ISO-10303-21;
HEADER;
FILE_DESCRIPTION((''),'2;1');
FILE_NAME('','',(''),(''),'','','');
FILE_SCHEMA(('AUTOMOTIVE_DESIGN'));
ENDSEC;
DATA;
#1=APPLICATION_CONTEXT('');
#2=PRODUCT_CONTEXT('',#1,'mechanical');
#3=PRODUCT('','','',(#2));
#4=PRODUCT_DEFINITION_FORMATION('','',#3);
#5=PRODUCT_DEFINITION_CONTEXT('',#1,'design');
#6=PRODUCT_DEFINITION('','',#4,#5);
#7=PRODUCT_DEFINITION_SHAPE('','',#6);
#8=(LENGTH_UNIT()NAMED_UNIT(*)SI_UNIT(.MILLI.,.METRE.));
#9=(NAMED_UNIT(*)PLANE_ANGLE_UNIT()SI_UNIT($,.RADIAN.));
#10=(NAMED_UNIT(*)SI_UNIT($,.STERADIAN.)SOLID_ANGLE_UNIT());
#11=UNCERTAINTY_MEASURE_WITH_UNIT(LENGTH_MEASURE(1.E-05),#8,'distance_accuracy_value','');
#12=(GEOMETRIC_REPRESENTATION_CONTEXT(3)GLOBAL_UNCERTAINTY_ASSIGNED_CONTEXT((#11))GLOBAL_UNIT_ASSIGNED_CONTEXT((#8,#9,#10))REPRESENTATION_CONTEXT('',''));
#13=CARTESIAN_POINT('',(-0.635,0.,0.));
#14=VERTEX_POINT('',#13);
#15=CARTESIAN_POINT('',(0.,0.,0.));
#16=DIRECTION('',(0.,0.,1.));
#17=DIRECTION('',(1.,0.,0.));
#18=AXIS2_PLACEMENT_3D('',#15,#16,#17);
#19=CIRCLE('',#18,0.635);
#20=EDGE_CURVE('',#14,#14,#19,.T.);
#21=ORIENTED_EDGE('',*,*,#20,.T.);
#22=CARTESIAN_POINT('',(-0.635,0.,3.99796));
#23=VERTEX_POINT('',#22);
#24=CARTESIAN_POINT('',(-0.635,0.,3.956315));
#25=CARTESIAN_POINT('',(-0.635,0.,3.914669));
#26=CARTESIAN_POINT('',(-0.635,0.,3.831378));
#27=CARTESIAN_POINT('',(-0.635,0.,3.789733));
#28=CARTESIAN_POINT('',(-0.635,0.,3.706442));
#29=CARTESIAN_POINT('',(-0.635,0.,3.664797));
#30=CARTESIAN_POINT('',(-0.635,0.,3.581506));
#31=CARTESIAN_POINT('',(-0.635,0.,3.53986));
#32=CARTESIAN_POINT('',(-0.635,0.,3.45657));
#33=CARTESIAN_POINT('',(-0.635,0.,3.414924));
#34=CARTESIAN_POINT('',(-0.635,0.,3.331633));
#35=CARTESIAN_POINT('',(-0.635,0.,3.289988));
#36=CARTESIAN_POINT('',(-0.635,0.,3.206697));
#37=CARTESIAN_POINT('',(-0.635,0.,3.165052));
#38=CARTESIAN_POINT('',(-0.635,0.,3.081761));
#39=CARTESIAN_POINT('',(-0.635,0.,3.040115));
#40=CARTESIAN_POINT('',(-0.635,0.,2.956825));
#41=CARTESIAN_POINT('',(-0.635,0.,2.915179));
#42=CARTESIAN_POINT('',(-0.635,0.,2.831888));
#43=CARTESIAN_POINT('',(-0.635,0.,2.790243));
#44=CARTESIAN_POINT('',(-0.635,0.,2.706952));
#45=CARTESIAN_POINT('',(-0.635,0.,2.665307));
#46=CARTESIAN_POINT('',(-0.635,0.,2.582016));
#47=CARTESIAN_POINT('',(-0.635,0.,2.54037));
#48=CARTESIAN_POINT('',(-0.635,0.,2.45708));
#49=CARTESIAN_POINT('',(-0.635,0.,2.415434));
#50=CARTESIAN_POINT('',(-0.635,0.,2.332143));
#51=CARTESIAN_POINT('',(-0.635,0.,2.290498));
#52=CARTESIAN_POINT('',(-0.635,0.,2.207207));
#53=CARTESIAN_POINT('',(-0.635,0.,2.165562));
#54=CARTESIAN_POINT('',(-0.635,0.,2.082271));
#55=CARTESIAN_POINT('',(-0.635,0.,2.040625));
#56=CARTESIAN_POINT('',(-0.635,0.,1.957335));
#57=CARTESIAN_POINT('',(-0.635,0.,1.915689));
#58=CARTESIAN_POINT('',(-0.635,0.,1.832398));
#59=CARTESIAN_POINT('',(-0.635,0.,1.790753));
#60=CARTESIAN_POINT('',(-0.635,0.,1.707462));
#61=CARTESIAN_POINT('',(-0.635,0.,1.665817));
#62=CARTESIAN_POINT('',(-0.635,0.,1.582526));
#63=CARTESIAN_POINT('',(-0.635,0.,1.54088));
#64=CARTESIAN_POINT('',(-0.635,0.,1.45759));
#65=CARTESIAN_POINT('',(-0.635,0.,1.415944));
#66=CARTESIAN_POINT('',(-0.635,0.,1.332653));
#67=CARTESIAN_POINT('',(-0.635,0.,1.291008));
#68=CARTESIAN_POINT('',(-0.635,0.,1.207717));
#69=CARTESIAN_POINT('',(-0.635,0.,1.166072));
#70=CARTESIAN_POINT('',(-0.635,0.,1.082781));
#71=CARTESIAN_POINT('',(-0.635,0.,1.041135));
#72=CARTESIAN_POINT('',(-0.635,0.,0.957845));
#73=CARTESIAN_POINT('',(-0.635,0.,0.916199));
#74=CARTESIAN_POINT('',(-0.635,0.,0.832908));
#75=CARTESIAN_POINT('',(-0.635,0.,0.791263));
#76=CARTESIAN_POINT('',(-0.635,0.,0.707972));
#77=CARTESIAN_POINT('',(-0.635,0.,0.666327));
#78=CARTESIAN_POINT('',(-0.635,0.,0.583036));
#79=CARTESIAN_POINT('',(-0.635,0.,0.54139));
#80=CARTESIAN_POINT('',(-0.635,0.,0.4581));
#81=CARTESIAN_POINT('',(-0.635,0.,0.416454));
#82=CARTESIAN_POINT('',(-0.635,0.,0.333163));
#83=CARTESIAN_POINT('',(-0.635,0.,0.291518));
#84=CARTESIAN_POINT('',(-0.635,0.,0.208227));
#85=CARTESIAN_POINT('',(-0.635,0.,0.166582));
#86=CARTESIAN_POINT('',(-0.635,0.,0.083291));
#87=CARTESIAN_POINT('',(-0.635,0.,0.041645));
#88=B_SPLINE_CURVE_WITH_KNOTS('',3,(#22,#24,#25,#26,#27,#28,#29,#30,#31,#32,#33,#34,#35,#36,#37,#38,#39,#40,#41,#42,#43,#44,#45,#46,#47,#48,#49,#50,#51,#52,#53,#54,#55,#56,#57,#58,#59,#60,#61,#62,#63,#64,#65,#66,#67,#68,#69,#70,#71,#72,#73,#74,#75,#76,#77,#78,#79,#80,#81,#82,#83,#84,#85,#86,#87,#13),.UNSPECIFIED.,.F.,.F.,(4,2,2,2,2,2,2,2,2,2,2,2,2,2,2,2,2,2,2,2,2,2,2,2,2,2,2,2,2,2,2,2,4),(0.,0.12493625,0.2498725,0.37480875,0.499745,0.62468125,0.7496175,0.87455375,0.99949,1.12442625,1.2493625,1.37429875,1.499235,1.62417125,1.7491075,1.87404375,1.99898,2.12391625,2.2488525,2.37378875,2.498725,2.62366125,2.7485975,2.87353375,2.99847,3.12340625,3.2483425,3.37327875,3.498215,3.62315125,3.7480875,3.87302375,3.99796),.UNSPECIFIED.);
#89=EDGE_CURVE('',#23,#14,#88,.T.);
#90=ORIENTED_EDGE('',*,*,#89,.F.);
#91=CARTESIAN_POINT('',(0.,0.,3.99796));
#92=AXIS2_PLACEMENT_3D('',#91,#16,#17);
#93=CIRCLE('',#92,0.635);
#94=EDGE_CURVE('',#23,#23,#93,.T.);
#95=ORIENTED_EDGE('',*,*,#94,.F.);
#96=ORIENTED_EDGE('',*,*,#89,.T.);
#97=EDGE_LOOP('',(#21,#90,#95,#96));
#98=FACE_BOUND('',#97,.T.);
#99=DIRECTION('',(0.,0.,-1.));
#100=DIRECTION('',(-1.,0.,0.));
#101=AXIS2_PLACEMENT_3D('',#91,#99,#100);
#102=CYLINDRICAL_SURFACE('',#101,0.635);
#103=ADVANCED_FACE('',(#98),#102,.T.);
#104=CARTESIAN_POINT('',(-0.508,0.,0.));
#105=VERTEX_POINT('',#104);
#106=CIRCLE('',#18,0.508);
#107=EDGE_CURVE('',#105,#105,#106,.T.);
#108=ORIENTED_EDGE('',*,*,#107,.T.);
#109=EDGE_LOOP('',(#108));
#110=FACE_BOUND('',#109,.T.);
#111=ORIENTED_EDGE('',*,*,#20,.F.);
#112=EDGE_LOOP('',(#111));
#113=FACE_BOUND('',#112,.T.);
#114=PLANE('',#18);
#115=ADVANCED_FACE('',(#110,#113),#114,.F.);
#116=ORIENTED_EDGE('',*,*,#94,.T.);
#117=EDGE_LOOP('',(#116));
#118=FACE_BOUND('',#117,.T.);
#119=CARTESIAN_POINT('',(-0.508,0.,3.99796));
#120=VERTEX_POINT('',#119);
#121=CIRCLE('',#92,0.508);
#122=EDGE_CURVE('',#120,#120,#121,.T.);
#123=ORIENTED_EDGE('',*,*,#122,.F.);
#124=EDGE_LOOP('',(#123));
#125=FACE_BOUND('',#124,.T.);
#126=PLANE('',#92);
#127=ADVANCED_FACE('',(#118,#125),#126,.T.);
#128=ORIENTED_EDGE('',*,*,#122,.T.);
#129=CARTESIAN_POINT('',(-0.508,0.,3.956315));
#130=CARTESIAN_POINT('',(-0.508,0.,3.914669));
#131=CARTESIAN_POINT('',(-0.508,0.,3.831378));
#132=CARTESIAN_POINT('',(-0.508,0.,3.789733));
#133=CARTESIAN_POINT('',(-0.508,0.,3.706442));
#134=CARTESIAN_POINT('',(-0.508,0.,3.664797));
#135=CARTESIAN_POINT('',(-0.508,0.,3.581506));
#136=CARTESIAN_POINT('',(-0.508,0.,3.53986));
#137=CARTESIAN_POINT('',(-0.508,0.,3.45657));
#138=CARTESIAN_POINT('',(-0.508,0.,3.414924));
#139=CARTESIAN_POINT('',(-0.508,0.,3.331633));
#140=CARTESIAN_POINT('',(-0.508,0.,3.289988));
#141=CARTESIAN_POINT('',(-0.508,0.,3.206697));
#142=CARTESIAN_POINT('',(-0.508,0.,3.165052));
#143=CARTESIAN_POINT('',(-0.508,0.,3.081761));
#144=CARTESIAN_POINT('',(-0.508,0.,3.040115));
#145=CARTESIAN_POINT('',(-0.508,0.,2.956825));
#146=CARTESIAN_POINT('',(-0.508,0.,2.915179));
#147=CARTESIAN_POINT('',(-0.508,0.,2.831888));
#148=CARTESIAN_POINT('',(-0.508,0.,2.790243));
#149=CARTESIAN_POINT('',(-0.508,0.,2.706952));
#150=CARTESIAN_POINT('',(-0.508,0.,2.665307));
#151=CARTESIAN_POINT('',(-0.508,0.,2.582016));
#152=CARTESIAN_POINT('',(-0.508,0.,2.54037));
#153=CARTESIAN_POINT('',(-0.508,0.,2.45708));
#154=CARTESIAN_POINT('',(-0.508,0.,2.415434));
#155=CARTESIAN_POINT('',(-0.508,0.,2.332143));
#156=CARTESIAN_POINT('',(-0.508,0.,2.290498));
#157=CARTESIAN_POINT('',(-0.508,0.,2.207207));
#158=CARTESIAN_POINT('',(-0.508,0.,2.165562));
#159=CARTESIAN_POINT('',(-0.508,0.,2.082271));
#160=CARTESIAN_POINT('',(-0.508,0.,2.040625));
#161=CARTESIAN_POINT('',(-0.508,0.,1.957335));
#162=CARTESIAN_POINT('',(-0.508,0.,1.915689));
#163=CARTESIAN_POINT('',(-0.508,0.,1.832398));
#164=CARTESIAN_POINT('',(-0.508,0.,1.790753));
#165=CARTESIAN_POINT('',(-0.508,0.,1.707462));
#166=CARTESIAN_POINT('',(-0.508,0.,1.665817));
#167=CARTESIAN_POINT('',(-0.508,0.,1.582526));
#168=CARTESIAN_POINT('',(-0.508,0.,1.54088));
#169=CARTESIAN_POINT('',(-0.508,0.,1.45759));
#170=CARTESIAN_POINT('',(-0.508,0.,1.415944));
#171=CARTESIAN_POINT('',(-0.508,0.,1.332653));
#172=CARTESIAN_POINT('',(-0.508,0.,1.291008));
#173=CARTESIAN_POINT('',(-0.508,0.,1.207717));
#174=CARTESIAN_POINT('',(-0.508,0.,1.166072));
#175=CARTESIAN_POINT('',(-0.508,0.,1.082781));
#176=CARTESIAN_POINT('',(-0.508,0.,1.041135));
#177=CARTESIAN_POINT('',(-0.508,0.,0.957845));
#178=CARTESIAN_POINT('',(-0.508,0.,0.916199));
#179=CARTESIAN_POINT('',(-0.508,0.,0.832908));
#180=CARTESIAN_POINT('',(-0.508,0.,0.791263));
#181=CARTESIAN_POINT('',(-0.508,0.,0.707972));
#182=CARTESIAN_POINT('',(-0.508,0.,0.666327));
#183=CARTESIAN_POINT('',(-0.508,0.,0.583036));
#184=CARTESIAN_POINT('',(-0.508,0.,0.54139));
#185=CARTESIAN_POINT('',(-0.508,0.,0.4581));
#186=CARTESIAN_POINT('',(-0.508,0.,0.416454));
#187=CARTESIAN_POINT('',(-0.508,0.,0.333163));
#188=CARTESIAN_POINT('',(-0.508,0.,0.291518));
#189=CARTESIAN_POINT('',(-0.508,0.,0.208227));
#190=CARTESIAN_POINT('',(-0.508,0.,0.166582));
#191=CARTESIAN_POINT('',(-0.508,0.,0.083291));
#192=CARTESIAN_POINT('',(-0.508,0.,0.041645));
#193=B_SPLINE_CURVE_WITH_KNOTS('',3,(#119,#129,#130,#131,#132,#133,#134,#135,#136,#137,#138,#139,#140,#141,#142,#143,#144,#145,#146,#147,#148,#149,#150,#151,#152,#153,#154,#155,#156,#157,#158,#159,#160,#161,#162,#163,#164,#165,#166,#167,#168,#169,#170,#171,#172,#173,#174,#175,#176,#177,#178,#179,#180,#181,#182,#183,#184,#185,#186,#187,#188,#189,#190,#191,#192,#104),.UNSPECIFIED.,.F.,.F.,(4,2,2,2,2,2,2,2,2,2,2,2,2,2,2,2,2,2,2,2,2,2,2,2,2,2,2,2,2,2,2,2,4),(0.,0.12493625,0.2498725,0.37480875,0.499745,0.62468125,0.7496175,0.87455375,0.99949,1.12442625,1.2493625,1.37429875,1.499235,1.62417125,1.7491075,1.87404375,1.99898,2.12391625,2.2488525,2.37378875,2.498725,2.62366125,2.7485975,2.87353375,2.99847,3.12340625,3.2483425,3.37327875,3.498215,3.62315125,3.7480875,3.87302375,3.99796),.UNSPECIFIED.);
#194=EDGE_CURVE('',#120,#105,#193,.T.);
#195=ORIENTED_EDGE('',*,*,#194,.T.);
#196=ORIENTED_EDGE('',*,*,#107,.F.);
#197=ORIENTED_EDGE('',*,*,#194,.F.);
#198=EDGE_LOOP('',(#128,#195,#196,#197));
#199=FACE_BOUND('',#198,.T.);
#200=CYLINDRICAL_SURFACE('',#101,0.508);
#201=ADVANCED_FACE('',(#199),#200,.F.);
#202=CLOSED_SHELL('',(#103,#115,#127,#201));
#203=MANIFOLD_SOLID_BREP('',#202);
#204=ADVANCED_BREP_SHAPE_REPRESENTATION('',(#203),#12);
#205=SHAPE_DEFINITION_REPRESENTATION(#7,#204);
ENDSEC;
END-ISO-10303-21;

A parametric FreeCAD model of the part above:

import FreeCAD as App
import Part
import Sketcher
Q = App.Units.Quantity

doc = App.newDocument("Part")
body = doc.addObject("PartDesign::Body", "Body")

# Sketch on XY plane
sketch1 = body.newObject("Sketcher::SketchObject", "Sketch")
sketch1.AttachmentSupport = (doc.getObject("XY_Plane"), [""])
sketch1.MapMode = "FlatFace"
sketch1.addGeometry([
    Part.Circle(App.Vector(0, 0, 0), App.Vector(0, 0, 1), 0.6),
    Part.Circle(App.Vector(0, 0, 0), App.Vector(0, 0, 1), 0.5),
], False)
sketch1.addConstraint([
    Sketcher.Constraint("Coincident", 0, 3, -1, 1),
    Sketcher.Constraint("Coincident", 1, 3, -1, 1),
    Sketcher.Constraint("Diameter", 0, Q("0.05 in")),
    Sketcher.Constraint("Diameter", 1, Q("0.04 in")),
])
pad1 = body.newObject("PartDesign::Pad", "Pad")
pad1.Profile = sketch1
pad1.Length = Q("0.1574 in")

doc.recompute()
